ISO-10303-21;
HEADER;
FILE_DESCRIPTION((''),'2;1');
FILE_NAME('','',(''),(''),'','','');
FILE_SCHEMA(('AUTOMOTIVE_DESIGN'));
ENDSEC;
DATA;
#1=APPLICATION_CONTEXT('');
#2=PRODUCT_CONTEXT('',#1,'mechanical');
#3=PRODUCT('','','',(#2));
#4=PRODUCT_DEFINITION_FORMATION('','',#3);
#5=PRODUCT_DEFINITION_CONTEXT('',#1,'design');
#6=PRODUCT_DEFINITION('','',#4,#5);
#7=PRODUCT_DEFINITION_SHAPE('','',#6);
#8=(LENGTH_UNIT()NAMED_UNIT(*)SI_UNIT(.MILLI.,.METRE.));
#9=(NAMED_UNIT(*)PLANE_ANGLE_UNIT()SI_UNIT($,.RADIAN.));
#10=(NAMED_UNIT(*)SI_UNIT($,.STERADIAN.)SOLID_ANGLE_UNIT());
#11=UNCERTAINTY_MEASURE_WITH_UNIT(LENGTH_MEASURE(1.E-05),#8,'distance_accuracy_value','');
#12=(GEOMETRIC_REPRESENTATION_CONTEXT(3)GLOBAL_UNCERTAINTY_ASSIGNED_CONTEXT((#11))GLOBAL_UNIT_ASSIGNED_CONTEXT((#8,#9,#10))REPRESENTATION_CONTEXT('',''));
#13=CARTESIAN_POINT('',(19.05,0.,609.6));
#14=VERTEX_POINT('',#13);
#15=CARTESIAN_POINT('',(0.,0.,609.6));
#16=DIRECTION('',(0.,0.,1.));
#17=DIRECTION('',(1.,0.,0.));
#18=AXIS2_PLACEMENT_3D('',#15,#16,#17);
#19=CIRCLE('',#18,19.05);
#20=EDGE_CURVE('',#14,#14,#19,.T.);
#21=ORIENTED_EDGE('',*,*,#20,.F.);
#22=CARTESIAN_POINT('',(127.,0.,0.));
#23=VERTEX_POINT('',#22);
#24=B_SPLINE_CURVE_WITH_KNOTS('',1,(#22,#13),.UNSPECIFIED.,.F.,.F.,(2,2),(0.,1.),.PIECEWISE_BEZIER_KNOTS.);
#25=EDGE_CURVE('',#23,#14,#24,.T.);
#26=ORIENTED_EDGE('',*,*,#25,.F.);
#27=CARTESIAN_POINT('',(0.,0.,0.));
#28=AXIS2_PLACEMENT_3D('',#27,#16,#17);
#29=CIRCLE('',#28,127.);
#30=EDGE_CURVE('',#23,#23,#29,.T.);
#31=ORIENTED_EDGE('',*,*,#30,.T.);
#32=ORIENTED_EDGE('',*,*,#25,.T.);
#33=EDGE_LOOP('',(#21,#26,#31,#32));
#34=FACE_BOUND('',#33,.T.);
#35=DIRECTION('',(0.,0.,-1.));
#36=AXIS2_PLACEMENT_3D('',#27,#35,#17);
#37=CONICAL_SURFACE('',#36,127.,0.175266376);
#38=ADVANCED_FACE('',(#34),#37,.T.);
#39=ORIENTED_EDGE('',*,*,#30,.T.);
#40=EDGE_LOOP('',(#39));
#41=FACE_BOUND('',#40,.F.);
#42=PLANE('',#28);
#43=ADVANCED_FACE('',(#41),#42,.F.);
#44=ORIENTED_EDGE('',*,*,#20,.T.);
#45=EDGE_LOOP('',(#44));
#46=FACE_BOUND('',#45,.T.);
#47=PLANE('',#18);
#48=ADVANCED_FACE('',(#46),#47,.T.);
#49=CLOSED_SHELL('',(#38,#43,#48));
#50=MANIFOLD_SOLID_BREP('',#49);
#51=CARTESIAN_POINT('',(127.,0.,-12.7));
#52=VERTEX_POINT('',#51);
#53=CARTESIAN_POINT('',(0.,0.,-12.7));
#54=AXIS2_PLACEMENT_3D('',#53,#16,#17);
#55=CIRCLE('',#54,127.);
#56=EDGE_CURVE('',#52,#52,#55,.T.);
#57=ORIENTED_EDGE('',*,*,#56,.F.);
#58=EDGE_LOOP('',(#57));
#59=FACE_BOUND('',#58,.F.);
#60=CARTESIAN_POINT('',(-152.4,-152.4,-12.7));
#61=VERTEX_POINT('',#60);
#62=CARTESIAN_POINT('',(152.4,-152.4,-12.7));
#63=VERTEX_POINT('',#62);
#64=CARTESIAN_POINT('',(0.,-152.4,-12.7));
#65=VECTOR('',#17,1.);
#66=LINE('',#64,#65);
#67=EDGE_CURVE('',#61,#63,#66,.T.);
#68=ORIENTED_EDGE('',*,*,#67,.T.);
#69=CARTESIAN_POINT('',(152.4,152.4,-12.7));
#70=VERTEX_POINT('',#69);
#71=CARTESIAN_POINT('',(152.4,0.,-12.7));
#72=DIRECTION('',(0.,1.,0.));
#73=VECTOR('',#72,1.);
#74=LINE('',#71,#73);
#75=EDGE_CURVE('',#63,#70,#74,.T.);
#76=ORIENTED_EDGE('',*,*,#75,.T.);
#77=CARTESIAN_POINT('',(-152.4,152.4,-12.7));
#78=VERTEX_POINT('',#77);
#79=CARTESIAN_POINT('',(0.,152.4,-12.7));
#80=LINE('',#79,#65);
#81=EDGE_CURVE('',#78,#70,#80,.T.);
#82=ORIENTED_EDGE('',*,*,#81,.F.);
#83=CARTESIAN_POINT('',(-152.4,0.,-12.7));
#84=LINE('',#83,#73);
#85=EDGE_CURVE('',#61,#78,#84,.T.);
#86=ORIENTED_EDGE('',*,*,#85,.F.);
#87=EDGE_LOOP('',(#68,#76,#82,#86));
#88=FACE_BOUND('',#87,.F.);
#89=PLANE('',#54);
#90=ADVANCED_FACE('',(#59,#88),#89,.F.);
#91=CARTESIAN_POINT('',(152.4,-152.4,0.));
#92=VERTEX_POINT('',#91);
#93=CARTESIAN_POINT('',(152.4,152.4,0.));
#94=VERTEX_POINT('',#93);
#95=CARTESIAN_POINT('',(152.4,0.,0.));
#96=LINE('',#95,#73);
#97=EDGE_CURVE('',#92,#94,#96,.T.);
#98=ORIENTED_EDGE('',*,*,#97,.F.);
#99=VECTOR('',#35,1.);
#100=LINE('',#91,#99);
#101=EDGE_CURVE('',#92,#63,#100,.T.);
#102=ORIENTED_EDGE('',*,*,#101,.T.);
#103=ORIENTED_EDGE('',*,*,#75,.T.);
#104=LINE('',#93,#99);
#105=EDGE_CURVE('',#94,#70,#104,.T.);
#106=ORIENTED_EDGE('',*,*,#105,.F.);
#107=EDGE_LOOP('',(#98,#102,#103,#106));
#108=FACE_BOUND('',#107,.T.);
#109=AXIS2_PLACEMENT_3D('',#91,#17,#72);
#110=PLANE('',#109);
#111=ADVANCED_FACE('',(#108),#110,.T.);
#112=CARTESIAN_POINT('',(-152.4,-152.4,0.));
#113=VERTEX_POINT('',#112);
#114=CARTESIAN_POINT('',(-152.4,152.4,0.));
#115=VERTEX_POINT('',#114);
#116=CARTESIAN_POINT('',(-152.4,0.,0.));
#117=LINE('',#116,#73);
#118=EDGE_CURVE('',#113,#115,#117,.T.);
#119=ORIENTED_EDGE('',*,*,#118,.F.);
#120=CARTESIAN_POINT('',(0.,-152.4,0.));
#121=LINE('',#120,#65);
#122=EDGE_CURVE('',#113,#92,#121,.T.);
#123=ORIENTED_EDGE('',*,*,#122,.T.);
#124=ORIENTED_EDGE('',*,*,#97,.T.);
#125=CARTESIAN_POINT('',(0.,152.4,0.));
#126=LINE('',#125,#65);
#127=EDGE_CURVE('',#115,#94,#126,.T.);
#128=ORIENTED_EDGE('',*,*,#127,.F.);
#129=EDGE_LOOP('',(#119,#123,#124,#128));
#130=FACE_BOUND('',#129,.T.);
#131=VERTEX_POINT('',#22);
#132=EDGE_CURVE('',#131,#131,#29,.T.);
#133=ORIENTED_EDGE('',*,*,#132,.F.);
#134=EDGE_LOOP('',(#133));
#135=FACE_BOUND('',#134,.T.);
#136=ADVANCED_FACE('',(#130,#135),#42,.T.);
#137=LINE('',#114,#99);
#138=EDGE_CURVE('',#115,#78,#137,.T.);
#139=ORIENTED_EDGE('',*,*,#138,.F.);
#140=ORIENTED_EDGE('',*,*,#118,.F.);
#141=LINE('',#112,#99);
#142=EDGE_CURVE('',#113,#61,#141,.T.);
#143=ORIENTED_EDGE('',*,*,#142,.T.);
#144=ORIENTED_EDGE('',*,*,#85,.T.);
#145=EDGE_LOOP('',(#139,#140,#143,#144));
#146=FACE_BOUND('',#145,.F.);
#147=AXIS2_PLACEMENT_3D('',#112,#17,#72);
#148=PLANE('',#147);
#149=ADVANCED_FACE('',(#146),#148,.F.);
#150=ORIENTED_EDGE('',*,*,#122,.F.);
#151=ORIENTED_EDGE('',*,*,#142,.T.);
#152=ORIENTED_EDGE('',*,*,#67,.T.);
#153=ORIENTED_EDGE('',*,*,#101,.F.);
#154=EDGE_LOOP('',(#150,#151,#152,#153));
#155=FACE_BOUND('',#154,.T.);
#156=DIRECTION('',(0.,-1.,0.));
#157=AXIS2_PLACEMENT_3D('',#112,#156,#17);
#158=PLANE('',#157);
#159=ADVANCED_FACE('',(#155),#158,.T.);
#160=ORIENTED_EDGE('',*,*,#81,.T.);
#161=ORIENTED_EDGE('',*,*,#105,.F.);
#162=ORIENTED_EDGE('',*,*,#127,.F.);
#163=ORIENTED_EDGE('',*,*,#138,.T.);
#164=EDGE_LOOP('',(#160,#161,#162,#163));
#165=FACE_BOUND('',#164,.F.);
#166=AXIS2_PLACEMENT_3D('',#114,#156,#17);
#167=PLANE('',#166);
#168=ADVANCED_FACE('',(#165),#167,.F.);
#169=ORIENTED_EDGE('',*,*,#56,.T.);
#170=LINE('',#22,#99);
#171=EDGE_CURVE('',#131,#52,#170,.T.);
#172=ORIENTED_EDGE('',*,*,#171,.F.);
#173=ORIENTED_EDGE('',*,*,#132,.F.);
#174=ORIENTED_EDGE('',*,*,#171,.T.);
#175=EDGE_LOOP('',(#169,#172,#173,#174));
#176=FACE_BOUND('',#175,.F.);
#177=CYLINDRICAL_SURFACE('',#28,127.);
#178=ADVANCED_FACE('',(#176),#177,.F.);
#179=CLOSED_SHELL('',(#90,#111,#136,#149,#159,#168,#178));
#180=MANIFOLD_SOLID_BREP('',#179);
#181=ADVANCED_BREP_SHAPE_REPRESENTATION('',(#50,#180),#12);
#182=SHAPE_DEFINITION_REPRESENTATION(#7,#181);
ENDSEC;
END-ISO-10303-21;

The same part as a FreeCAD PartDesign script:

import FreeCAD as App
import Part
import Sketcher

V = App.Vector
Q = App.Units.Quantity


def add_polygon(sketch, points):
    """Adds a closed chain of lines whose ends are joined by coincident constraints."""
    first, n = sketch.GeometryCount, len(points)
    for a, b in zip(points, points[1:] + points[:1]):
        sketch.addGeometry(Part.LineSegment(App.Vector(*a, 0), App.Vector(*b, 0)), False)
    for i in range(n):
        sketch.addConstraint(Sketcher.Constraint("Coincident", first + i, 2, first + (i + 1) % n, 1))

doc = App.newDocument("Part")
body = doc.addObject("PartDesign::Body", "Body")

sketch1 = body.newObject("Sketcher::SketchObject", "Sketch")
sketch1.AttachmentSupport = (doc.getObject("XY_Plane"), [""])
sketch1.MapMode = "FlatFace"
add_polygon(sketch1, [(-152.4, 152.4), (-152.4, -152.4), (152.4, -152.4), (152.4, 152.4)])
sketch1.addGeometry(Part.Circle(V(0, 0, 0), V(0, 0, 1), 127), False)
sketch1.addConstraint([
    Sketcher.Constraint("Vertical", 0),
    Sketcher.Constraint("Horizontal", 1),
    Sketcher.Constraint("Vertical", 2),
    Sketcher.Constraint("Horizontal", 3),
    Sketcher.Constraint("Coincident", 4, 3, -1, 1),
    Sketcher.Constraint("Symmetric", 0, 2, 2, 2, -1, 1),
    Sketcher.Constraint("Equal", 3, 0),
    Sketcher.Constraint("Diameter", 4, Q("10 in")),
    Sketcher.Constraint("DistanceX", 1, 1, 1, 2, Q("12 in")),
])
pad1 = body.newObject("PartDesign::Pad", "Pad")
pad1.Profile = sketch1
pad1.Length = Q("0.5 in")
pad1.Reversed = True
body2 = doc.addObject("PartDesign::Body", "Body001")

sketch2 = body2.newObject("Sketcher::SketchObject", "Sketch001")
sketch2.AttachmentSupport = (doc.getObject("XY_Plane001"), [""])
sketch2.MapMode = "FlatFace"
sketch2.addGeometry(Part.Circle(V(0, 0, 0), V(0, 0, 1), 127), False)
sketch2.addConstraint([
    Sketcher.Constraint("Coincident", 0, 3, -1, 1),
    Sketcher.Constraint("Diameter", 0, Q("10 in")),
])

sketch3 = body2.newObject("Sketcher::SketchObject", "Sketch002")
sketch3.AttachmentSupport = (doc.getObject("XY_Plane001"), [""])
sketch3.MapMode = "FlatFace"
sketch3.AttachmentOffset = App.Placement(V(0, 0, 24 * 25.4), App.Rotation())
sketch3.addGeometry(Part.Circle(V(0, 0, 0), V(0, 0, 1), 19.05), False)
sketch3.addConstraint([
    Sketcher.Constraint("Coincident", 0, 3, -1, 1),
    Sketcher.Constraint("Diameter", 0, Q("1.5 in")),
])

additiveloft = body2.newObject("PartDesign::AdditiveLoft", "AdditiveLoft")
additiveloft.Profile = sketch2
additiveloft.Sections = [sketch3]

doc.recompute()
